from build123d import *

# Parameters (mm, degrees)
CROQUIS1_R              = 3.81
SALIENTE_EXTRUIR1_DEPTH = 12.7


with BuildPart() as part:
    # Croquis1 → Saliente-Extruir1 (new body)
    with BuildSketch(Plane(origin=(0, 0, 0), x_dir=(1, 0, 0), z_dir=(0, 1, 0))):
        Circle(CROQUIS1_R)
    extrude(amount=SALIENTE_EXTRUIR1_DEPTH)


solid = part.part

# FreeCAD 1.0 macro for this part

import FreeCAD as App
import Part
import Sketcher
from FreeCAD import Vector
Q = App.Units.Quantity

doc = App.newDocument("Part")
body = doc.addObject("PartDesign::Body", "Body")

sketch1 = body.newObject("Sketcher::SketchObject", "Sketch")
sketch1.AttachmentSupport = (doc.getObject("XZ_Plane"), [""])
sketch1.MapMode = "FlatFace"
sketch1.addGeometry(Part.Circle(Vector(0, 0, 0), Vector(0, 0, 1), 3.8), False)
sketch1.addConstraint(Sketcher.Constraint("Coincident", 0, 3, -1, 1))
sketch1.addConstraint(Sketcher.Constraint("Diameter", 0, Q("0.3 in")))
pad1 = body.newObject("PartDesign::Pad", "Pad")
pad1.Profile = sketch1
pad1.Length = Q("0.5 in")
pad1.Reversed = True

doc.recompute()
